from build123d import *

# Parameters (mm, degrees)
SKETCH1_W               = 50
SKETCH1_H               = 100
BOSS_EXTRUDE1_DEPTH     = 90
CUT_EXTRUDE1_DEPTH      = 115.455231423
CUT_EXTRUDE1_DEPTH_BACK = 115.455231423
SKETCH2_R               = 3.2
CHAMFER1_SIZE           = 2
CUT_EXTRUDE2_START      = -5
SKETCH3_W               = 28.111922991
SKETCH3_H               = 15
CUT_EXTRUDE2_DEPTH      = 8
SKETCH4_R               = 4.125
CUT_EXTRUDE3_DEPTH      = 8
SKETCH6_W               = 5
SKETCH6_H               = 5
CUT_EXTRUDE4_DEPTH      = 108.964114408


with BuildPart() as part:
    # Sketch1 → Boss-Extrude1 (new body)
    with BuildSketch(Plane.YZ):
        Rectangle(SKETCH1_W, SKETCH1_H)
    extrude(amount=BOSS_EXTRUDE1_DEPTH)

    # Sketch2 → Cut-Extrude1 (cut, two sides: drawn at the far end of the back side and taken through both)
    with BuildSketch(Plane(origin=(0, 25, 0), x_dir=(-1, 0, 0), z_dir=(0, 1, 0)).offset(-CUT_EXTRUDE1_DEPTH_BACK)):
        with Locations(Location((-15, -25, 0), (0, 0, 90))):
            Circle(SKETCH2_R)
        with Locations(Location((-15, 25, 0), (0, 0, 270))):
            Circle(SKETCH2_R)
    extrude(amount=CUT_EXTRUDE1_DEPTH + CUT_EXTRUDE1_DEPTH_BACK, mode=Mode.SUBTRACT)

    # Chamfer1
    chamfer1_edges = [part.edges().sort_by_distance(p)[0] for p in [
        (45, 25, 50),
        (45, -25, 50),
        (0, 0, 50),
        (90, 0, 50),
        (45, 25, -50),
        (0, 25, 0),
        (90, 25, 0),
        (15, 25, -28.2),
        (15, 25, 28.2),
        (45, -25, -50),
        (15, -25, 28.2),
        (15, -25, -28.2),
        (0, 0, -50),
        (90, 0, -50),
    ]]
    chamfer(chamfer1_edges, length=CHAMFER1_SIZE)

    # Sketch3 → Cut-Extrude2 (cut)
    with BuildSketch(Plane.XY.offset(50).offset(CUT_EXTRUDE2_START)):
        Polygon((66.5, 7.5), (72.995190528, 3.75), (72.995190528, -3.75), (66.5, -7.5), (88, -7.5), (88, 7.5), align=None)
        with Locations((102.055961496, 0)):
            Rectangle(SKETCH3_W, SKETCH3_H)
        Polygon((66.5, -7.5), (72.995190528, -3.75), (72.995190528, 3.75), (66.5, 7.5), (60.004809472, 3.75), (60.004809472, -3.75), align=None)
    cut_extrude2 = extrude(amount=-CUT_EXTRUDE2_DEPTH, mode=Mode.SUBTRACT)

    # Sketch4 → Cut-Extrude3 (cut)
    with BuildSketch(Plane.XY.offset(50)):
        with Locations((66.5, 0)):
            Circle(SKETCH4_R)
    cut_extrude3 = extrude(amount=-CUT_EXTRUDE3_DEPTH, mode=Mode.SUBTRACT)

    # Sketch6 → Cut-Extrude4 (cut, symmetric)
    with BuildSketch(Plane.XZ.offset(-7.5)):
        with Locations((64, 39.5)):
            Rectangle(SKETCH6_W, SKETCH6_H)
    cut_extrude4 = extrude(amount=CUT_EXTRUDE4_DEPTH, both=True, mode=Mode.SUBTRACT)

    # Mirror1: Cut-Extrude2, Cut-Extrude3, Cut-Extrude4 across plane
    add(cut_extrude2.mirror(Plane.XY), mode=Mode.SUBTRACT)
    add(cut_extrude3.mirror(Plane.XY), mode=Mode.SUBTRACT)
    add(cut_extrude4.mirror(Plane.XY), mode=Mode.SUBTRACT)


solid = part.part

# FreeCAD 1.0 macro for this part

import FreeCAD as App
import Part
import Sketcher

V = App.Vector
Q = App.Units.Quantity


def edges_at(feature, points):
    """Names of the edges that pass closest to the given points."""
    edges = feature.Shape.Edges
    near = lambda p: min(range(len(edges)), key=lambda i: edges[i].distToShape(Part.Vertex(*p))[0])
    return sorted({f"Edge{near(p) + 1}" for p in points})

doc = App.newDocument("Part")
params = doc.addObject("Spreadsheet::Sheet", "Params")
for row, (alias, value) in enumerate([
    ("sketch1_width", "50 mm"),
    ("sketch1_height", "100 mm"),
    ("pad1_length", "90 mm"),
    ("sketch2_diameter", "6.4 mm"),
    ("chamfer_size", "2 mm"),
    ("sketch3_height", "15 mm"),
    ("sketch3_height2", "7.5 mm"),
    ("pocket2_length", "8 mm"),
    ("sketch4_diameter", "8.25 mm"),
    ("pocket3_length", "8 mm"),
    ("sketch5_width", "5 mm"),
    ("pocket4_length", "217.928229 mm"),
], start=1):
    params.set(f"A{row}", alias)
    params.set(f"B{row}", "=" + value)
    params.setAlias(f"B{row}", alias)

body = doc.addObject("PartDesign::Body", "Body")

sketch1 = doc.addObject("Sketcher::SketchObject", "Sketch")
body.addObject(sketch1)
sketch1.AttachmentSupport = (doc.YZ_Plane, [""])
sketch1.MapMode = "FlatFace"
sketch1.addGeometry(Part.LineSegment(V(-25, 50, 0), V(-25, -50, 0)), False)
sketch1.addGeometry(Part.LineSegment(V(-25, -50, 0), V(25, -50, 0)), False)
sketch1.addGeometry(Part.LineSegment(V(25, -50, 0), V(25, 50, 0)), False)
sketch1.addGeometry(Part.LineSegment(V(25, 50, 0), V(-25, 50, 0)), False)
sketch1.addConstraint(Sketcher.Constraint("Coincident", 0, 2, 1, 1))
sketch1.addConstraint(Sketcher.Constraint("Coincident", 1, 2, 2, 1))
sketch1.addConstraint(Sketcher.Constraint("Coincident", 2, 2, 3, 1))
sketch1.addConstraint(Sketcher.Constraint("Coincident", 3, 2, 0, 1))
sketch1.addConstraint(Sketcher.Constraint("Vertical", 0))
sketch1.addConstraint(Sketcher.Constraint("Horizontal", 1))
sketch1.addConstraint(Sketcher.Constraint("Vertical", 2))
sketch1.addConstraint(Sketcher.Constraint("Horizontal", 3))
sketch1.addConstraint(Sketcher.Constraint("Symmetric", 0, 2, 2, 2, -1, 1))
sketch1.addConstraint(Sketcher.Constraint("DistanceX", 1, 1, 1, 2, Q("50 mm")))
sketch1.addConstraint(Sketcher.Constraint("DistanceY", 0, 2, 0, 1, Q("100 mm")))
sketch1.setExpression("Constraints[9]", "Params.sketch1_width")
sketch1.setExpression("Constraints[10]", "Params.sketch1_height")
pad1 = doc.addObject("PartDesign::Pad", "Pad")
body.addObject(pad1)
pad1.Profile = sketch1
pad1.setExpression("Length", "Params.pad1_length")

sketch2 = doc.addObject("Sketcher::SketchObject", "Sketch001")
body.addObject(sketch2)
sketch2.AttachmentSupport = (doc.XZ_Plane, [""])
sketch2.MapMode = "FlatFace"
sketch2.AttachmentOffset = App.Placement(V(0, 0, -25), App.Rotation())
sketch2.addGeometry(Part.Circle(V(15, -25, 0), V(0, 0, 1), 3.2), False)
sketch2.addGeometry(Part.Circle(V(15, 25, 0), V(0, 0, 1), 3.2), False)
sketch2.addConstraint(Sketcher.Constraint("Equal", 0, 1))
sketch2.addConstraint(Sketcher.Constraint("Symmetric", 0, 3, 1, 3, -1))
sketch2.addConstraint(Sketcher.Constraint("Diameter", 0, Q("6.4 mm")))
sketch2.addConstraint(Sketcher.Constraint("DistanceX", -1, 1, 0, 3, Q("15 mm")))
sketch2.addConstraint(Sketcher.Constraint("DistanceY", 0, 3, -1, 1, Q("25 mm")))
sketch2.setExpression("Constraints[2]", "Params.sketch2_diameter")
pocket1 = doc.addObject("PartDesign::Pocket", "Pocket")
body.addObject(pocket1)
pocket1.Profile = sketch2
pocket1.Type = "ThroughAll"
pocket1.Midplane = True
doc.recompute()

chamfer = doc.addObject("PartDesign::Chamfer", "Chamfer")
body.addObject(chamfer)
chamfer.Base = (pocket1, edges_at(pocket1, [
    (45, 25, 50),
    (45, -25, 50),
    (0, 0, 50),
    (90, 0, 50),
    (45, 25, -50),
    (0, 25, 0),
    (90, 25, 0),
    (15, 25, -28.2),
    (15, 25, 28.2),
    (45, -25, -50),
    (15, -25, 28.2),
    (15, -25, -28.2),
    (0, 0, -50),
    (90, 0, -50),
]))
chamfer.setExpression("Size", "Params.chamfer_size")

sketch3 = doc.addObject("Sketcher::SketchObject", "Sketch002")
body.addObject(sketch3)
sketch3.AttachmentSupport = (doc.XY_Plane, [""])
sketch3.MapMode = "FlatFace"
sketch3.AttachmentOffset = App.Placement(V(0, 0, 45), App.Rotation())
sketch3.addGeometry(Part.LineSegment(V(66, -8, 0), V(116, -8, 0)), False)
sketch3.addGeometry(Part.LineSegment(V(116, -8, 0), V(116, 8, 0)), False)
sketch3.addGeometry(Part.LineSegment(V(116, 8, 0), V(66, 8, 0)), False)
sketch3.addGeometry(Part.LineSegment(V(66, 8, 0), V(60, 4, 0)), False)
sketch3.addGeometry(Part.LineSegment(V(60, 4, 0), V(60, -4, 0)), False)
sketch3.addGeometry(Part.LineSegment(V(60, -4, 0), V(66, -8, 0)), False)
sketch3.addConstraint(Sketcher.Constraint("Coincident", 0, 2, 1, 1))
sketch3.addConstraint(Sketcher.Constraint("Coincident", 1, 2, 2, 1))
sketch3.addConstraint(Sketcher.Constraint("Coincident", 2, 2, 3, 1))
sketch3.addConstraint(Sketcher.Constraint("Coincident", 3, 2, 4, 1))
sketch3.addConstraint(Sketcher.Constraint("Coincident", 4, 2, 5, 1))
sketch3.addConstraint(Sketcher.Constraint("Coincident", 5, 2, 0, 1))
sketch3.addConstraint(Sketcher.Constraint("Horizontal", 0))
sketch3.addConstraint(Sketcher.Constraint("Vertical", 1))
sketch3.addConstraint(Sketcher.Constraint("Horizontal", 2))
sketch3.addConstraint(Sketcher.Constraint("Vertical", 4))
sketch3.addConstraint(Sketcher.Constraint("Symmetric", 2, 2, 5, 2, -1))
sketch3.addConstraint(Sketcher.Constraint("Equal", 3, 5))
sketch3.addConstraint(Sketcher.Constraint("DistanceY", 1, 1, 1, 2, Q("15 mm")))
sketch3.addConstraint(Sketcher.Constraint("Angle", 3, Q("-150 deg")))
sketch3.addConstraint(Sketcher.Constraint("DistanceY", 4, 2, 4, 1, Q("7.5 mm")))
sketch3.addConstraint(Sketcher.Constraint("DistanceX", -1, 1, 2, 2, Q("66.5 mm")))
sketch3.addConstraint(Sketcher.Constraint("DistanceX", 0, 1, 0, 2, Q("49.611923 mm")))
sketch3.setExpression("Constraints[12]", "Params.sketch3_height")
sketch3.setExpression("Constraints[14]", "Params.sketch3_height2")
pocket2 = doc.addObject("PartDesign::Pocket", "Pocket001")
body.addObject(pocket2)
pocket2.Profile = sketch3
pocket2.setExpression("Length", "Params.pocket2_length")

sketch4 = doc.addObject("Sketcher::SketchObject", "Sketch003")
body.addObject(sketch4)
sketch4.AttachmentSupport = (doc.XY_Plane, [""])
sketch4.MapMode = "FlatFace"
sketch4.AttachmentOffset = App.Placement(V(0, 0, 50), App.Rotation())
sketch4.addGeometry(Part.Circle(V(66.5, 0, 0), V(0, 0, 1), 4.1), False)
sketch4.addConstraint(Sketcher.Constraint("PointOnObject", 0, 3, -1))
sketch4.addConstraint(Sketcher.Constraint("Diameter", 0, Q("8.25 mm")))
sketch4.addConstraint(Sketcher.Constraint("DistanceX", -1, 1, 0, 3, Q("66.5 mm")))
sketch4.setExpression("Constraints[1]", "Params.sketch4_diameter")
pocket3 = doc.addObject("PartDesign::Pocket", "Pocket002")
body.addObject(pocket3)
pocket3.Profile = sketch4
pocket3.setExpression("Length", "Params.pocket3_length")

sketch5 = doc.addObject("Sketcher::SketchObject", "Sketch004")
body.addObject(sketch5)
sketch5.AttachmentSupport = (doc.XZ_Plane, [""])
sketch5.MapMode = "FlatFace"
sketch5.AttachmentOffset = App.Placement(V(0, 0, -7.5), App.Rotation())
sketch5.addGeometry(Part.LineSegment(V(62, 42, 0), V(62, 37, 0)), False)
sketch5.addGeometry(Part.LineSegment(V(62, 37, 0), V(66, 37, 0)), False)
sketch5.addGeometry(Part.LineSegment(V(66, 37, 0), V(66, 42, 0)), False)
sketch5.addGeometry(Part.LineSegment(V(66, 42, 0), V(62, 42, 0)), False)
sketch5.addConstraint(Sketcher.Constraint("Coincident", 0, 2, 1, 1))
sketch5.addConstraint(Sketcher.Constraint("Coincident", 1, 2, 2, 1))
sketch5.addConstraint(Sketcher.Constraint("Coincident", 2, 2, 3, 1))
sketch5.addConstraint(Sketcher.Constraint("Coincident", 3, 2, 0, 1))
sketch5.addConstraint(Sketcher.Constraint("Vertical", 0))
sketch5.addConstraint(Sketcher.Constraint("Horizontal", 1))
sketch5.addConstraint(Sketcher.Constraint("Vertical", 2))
sketch5.addConstraint(Sketcher.Constraint("Horizontal", 3))
sketch5.addConstraint(Sketcher.Constraint("Equal", 3, 0))
sketch5.addConstraint(Sketcher.Constraint("DistanceX", 1, 1, 1, 2, Q("5 mm")))
sketch5.addConstraint(Sketcher.Constraint("DistanceY", -1, 1, 0, 2, Q("37 mm")))
sketch5.addConstraint(Sketcher.Constraint("DistanceX", -1, 1, 0, 2, Q("61.5 mm")))
sketch5.setExpression("Constraints[9]", "Params.sketch5_width")
pocket4 = doc.addObject("PartDesign::Pocket", "Pocket003")
body.addObject(pocket4)
pocket4.Profile = sketch5
pocket4.setExpression("Length", "Params.pocket4_length")
pocket4.Midplane = True
doc.recompute()

mirrored = doc.addObject("PartDesign::Mirrored", "Mirrored")
body.addObject(mirrored)
mirrored.Originals = [pocket2, pocket3, pocket4]
mirrored.MirrorPlane = (doc.XY_Plane, [""])
body.Tip = mirrored

doc.recompute()
